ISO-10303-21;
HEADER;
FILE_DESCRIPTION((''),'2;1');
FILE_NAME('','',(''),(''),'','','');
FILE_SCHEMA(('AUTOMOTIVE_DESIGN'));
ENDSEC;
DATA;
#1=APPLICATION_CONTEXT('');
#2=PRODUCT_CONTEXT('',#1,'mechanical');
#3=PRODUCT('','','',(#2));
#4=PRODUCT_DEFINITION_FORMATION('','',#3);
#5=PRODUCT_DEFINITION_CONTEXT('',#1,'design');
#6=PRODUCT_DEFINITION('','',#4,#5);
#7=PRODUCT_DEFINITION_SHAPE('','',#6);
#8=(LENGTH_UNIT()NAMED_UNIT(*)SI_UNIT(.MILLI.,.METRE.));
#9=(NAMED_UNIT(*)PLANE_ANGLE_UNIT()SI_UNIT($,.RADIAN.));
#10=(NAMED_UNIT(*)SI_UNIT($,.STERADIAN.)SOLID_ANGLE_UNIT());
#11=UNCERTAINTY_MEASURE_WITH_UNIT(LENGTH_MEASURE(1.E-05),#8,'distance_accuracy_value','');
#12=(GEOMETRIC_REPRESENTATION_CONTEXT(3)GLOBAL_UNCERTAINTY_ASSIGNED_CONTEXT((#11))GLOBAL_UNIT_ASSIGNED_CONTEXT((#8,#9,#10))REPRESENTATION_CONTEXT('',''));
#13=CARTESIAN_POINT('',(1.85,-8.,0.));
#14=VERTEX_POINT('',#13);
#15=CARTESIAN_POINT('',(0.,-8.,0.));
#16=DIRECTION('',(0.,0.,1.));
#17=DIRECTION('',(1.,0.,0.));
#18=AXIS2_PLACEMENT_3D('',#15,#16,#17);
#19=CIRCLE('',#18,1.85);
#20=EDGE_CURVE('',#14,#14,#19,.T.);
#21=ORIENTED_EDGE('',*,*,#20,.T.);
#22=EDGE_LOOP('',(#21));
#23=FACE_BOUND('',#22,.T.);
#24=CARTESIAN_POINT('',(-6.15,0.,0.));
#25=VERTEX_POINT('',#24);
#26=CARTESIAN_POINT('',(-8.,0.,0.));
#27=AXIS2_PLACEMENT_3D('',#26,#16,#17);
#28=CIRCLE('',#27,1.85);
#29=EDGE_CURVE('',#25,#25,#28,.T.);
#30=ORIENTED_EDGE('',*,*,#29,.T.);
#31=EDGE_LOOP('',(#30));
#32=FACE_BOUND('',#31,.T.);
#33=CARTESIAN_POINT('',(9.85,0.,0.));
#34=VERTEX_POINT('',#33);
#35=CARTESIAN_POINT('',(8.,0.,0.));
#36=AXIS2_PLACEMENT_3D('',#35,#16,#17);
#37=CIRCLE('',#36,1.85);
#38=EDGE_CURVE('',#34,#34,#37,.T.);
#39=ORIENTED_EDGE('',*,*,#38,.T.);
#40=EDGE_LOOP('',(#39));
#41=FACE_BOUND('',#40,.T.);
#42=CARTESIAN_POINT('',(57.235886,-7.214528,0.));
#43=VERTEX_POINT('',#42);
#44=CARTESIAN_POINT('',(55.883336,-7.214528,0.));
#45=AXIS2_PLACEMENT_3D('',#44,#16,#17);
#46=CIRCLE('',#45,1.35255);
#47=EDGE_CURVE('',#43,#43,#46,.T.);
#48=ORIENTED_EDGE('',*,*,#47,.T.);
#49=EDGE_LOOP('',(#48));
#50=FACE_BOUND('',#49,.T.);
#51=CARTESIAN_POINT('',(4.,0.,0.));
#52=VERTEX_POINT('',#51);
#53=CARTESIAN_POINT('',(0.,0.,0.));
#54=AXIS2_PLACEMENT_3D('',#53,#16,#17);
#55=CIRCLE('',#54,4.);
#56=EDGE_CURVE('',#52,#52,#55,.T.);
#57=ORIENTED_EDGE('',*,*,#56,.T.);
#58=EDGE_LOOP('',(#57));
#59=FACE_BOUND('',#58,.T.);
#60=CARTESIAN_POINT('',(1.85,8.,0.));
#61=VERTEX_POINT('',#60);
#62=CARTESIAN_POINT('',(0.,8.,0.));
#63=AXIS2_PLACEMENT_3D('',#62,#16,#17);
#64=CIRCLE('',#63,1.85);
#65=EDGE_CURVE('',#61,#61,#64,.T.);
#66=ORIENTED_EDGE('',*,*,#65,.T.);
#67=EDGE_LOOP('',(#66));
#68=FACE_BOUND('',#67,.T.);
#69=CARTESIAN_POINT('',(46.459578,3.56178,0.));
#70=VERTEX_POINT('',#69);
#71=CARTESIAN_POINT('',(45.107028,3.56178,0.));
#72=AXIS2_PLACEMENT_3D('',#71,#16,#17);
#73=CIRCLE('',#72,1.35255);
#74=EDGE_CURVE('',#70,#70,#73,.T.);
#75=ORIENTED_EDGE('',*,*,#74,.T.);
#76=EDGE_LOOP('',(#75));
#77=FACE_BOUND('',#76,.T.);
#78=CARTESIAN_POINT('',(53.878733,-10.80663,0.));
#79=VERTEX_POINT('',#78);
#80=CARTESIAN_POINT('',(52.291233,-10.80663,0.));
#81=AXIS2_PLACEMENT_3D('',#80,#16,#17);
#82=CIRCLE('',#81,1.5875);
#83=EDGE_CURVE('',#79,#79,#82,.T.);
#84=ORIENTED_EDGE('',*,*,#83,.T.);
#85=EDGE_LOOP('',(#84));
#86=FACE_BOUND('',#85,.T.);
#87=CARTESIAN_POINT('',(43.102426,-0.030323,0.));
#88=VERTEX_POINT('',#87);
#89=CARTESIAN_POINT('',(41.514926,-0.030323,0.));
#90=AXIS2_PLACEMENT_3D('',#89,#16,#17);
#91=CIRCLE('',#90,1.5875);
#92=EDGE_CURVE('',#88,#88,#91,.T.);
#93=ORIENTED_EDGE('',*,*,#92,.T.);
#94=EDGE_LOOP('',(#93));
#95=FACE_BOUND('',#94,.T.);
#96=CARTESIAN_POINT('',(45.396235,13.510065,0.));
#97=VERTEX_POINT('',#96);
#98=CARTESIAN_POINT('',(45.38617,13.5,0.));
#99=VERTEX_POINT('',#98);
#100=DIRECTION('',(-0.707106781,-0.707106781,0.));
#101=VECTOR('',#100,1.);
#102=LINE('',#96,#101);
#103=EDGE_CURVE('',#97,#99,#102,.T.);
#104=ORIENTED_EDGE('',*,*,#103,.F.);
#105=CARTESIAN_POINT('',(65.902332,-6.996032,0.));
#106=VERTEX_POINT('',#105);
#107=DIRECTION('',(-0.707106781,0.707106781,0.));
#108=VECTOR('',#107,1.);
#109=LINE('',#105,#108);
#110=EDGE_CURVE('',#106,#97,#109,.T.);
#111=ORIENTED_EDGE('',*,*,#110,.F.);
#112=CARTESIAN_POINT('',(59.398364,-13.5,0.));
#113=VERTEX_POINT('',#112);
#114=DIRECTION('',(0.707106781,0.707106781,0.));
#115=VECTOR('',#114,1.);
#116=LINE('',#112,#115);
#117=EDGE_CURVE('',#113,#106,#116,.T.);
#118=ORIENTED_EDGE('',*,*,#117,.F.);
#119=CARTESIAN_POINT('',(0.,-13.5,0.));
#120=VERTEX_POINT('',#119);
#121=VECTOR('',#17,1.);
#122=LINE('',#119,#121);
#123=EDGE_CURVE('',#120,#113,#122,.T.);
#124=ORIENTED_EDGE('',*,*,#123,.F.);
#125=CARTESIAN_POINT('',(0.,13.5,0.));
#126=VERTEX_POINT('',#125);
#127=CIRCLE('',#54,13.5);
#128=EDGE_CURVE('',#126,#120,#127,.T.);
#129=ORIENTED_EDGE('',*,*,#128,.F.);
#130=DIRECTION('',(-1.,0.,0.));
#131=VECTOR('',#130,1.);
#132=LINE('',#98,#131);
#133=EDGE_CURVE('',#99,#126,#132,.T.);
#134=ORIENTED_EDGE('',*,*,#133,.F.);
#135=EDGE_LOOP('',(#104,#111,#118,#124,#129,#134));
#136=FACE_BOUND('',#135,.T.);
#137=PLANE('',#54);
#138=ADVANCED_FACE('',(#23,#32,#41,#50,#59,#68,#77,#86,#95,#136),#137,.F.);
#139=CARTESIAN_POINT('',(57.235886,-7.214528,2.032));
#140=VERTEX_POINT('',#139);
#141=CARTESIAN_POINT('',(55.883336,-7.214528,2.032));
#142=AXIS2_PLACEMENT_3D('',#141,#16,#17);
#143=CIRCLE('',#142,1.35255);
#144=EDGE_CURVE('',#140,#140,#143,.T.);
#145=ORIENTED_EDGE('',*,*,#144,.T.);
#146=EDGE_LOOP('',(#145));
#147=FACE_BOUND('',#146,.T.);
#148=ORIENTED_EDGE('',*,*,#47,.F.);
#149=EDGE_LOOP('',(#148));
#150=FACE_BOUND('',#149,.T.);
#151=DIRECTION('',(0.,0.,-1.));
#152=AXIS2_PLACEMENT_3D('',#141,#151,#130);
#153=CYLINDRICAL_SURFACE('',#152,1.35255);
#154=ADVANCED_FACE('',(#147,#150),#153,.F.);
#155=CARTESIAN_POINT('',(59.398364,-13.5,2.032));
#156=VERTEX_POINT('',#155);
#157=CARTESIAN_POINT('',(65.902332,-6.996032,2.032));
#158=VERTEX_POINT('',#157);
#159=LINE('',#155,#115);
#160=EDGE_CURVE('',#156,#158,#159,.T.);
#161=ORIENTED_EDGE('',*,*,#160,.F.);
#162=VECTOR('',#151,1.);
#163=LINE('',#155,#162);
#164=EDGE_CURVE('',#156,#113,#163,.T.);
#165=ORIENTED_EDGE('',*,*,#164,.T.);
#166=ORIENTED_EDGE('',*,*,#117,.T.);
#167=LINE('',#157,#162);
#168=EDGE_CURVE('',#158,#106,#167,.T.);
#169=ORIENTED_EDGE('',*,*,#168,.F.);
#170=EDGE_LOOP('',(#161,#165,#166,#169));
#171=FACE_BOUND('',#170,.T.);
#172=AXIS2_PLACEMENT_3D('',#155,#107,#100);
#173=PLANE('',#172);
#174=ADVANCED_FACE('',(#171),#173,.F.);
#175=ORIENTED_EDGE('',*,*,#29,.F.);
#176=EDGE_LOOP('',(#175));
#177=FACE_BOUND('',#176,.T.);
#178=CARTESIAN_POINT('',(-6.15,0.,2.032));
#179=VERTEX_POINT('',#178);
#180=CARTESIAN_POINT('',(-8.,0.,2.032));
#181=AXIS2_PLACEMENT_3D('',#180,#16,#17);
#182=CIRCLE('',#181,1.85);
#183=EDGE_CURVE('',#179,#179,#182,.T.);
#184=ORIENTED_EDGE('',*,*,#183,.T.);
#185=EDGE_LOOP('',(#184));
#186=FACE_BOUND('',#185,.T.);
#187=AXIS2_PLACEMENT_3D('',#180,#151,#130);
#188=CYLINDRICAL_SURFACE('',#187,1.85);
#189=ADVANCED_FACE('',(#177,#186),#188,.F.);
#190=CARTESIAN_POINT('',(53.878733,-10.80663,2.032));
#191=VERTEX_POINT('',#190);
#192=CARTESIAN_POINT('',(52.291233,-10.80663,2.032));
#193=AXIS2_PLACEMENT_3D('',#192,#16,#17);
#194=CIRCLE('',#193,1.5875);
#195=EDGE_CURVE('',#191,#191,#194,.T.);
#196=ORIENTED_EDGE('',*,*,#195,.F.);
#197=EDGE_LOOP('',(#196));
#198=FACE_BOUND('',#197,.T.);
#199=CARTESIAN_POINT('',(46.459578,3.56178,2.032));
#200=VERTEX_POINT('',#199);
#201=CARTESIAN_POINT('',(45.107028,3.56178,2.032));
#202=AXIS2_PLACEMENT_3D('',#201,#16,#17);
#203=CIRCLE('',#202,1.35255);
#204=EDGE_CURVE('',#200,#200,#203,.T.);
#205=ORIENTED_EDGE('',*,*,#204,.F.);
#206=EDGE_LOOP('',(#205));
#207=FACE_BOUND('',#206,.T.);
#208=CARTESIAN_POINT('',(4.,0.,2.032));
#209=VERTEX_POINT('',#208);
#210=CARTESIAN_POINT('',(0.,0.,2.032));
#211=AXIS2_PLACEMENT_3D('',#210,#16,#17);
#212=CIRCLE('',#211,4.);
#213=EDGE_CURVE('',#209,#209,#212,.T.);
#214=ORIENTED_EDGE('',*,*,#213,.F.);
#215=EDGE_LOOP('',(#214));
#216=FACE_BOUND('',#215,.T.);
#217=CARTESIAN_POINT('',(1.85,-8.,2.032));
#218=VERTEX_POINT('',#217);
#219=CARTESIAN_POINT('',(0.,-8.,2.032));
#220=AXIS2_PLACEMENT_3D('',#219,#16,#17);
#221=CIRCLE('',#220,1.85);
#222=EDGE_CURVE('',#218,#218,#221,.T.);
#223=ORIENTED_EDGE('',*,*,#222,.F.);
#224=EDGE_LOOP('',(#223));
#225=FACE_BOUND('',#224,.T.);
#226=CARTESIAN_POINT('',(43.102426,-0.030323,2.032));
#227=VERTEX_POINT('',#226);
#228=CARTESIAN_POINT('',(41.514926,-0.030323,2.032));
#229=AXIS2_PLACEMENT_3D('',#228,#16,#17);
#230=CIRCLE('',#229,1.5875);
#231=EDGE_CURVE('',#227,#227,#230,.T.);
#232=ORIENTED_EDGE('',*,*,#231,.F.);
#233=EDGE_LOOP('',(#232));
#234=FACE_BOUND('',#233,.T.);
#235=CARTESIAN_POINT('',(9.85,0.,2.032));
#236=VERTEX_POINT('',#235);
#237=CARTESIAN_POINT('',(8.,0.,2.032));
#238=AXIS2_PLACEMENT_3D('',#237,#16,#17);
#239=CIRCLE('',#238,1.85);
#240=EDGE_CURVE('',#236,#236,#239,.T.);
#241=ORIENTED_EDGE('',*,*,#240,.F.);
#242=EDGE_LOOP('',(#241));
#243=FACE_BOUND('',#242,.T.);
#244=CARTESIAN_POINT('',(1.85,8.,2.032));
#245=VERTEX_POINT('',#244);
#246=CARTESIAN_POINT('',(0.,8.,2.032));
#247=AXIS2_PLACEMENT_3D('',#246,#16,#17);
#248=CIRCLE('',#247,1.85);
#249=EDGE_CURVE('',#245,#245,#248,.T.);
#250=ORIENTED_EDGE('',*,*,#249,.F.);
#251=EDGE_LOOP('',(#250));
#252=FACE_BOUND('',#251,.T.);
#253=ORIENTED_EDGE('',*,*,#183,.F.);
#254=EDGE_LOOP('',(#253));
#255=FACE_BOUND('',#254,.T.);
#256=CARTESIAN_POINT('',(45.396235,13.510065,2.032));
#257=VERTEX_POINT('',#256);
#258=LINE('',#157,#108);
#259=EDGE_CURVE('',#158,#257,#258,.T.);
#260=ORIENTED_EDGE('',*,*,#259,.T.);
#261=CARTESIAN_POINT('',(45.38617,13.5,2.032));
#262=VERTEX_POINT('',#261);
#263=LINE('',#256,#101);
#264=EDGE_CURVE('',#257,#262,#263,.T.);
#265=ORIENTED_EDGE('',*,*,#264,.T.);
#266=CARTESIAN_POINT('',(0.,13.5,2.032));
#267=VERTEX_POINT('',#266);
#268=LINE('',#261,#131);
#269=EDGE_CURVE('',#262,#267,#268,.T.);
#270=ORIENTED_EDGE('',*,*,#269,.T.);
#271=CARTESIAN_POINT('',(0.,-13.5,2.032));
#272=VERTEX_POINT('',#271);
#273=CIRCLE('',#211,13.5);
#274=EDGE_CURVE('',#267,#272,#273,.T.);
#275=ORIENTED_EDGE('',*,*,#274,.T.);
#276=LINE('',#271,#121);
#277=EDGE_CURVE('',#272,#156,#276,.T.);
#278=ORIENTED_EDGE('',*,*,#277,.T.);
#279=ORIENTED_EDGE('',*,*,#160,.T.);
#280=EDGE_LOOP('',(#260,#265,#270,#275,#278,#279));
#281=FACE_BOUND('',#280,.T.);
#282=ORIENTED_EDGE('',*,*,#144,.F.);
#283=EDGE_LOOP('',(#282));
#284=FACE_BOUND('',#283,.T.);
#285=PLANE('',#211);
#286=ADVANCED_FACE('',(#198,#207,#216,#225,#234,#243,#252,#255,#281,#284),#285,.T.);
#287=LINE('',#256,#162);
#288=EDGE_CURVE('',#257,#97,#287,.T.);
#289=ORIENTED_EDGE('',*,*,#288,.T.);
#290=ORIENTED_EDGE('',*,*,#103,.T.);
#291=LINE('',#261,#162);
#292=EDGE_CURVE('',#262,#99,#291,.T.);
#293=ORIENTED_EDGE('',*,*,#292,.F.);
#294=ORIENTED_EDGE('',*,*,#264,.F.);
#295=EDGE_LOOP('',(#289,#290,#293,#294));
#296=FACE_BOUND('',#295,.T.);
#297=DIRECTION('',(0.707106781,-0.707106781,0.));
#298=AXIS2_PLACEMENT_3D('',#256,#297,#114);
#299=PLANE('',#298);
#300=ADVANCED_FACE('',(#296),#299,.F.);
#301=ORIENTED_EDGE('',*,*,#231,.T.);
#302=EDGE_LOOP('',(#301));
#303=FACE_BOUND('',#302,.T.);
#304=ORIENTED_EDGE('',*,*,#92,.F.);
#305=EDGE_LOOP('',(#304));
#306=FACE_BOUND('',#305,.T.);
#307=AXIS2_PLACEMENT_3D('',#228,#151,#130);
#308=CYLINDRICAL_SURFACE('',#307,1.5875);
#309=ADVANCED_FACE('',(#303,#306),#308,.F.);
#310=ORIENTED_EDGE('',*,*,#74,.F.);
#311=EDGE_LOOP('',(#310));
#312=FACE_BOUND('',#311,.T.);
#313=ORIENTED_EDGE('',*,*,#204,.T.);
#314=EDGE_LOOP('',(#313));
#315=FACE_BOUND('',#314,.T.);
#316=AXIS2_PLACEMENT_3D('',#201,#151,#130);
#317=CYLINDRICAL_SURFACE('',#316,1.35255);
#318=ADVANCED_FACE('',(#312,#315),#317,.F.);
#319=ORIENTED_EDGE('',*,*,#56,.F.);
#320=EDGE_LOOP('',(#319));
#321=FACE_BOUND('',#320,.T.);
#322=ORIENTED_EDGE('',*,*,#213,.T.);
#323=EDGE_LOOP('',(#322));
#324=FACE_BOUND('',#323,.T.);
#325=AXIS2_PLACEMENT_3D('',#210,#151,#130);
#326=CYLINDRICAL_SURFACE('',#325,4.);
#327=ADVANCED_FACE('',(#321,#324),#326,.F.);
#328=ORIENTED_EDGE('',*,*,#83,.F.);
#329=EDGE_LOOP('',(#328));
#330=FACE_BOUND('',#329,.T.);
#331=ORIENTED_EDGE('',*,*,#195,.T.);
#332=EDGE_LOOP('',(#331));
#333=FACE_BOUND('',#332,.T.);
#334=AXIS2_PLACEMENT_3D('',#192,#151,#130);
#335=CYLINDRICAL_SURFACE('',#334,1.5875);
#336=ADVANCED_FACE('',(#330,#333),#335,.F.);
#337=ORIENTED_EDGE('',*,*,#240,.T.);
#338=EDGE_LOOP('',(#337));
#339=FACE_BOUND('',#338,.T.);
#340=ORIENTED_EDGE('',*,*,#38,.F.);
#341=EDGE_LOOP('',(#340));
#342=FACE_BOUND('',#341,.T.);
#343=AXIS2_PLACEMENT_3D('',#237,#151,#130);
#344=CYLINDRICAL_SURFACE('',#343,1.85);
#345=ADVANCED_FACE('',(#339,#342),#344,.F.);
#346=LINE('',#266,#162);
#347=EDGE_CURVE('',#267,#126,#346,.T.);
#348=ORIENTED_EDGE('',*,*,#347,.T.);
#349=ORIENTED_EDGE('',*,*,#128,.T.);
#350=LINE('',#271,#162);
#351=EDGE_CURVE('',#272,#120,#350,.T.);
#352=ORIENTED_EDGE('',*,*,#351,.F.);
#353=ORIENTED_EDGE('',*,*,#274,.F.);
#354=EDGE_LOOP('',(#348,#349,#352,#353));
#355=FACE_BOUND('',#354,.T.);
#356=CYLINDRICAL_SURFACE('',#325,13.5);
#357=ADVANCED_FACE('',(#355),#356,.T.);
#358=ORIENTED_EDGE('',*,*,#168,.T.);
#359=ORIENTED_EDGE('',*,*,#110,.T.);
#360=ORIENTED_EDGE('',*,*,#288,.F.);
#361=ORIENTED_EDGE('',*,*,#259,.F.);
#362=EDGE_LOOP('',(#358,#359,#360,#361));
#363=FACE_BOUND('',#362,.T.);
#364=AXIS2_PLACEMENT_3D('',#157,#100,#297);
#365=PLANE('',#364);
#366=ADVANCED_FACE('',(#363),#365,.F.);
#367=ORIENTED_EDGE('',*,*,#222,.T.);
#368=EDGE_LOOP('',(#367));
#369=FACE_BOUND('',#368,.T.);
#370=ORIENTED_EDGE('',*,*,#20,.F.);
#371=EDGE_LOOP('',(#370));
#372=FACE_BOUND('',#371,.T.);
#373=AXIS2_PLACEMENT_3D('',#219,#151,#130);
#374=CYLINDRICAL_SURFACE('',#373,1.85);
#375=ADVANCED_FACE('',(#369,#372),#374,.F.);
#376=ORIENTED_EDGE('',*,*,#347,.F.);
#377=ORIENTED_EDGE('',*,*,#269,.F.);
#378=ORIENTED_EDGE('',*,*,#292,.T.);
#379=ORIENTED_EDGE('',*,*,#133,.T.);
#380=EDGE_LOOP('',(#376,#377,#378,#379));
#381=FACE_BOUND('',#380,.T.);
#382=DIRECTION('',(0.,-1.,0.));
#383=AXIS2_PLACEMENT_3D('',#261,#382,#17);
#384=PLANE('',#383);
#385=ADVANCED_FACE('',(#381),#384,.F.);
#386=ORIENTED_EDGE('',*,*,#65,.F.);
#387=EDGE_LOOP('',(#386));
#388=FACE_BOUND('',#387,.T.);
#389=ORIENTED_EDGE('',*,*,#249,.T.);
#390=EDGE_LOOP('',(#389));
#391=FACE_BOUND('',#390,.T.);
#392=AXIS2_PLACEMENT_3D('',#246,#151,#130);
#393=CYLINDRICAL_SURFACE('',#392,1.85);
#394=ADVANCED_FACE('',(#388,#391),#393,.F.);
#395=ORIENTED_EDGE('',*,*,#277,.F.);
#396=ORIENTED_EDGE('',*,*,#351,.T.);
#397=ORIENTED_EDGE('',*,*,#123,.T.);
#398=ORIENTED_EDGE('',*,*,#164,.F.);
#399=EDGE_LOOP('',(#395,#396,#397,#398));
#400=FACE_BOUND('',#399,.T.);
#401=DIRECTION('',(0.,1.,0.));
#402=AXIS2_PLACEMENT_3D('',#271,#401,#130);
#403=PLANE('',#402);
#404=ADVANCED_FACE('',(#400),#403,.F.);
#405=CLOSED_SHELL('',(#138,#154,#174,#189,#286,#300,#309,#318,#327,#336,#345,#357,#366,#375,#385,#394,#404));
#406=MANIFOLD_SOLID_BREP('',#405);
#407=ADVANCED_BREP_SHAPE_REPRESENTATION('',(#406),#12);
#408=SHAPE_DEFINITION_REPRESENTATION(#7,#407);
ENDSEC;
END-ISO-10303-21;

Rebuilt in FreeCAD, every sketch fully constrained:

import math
import FreeCAD as App
import Part
import Sketcher
from FreeCAD import Vector
Q = App.Units.Quantity

doc = App.newDocument("Part")
body = doc.addObject("PartDesign::Body", "Body")

sketch1 = doc.addObject("Sketcher::SketchObject", "Sketch")
body.addObject(sketch1)
sketch1.AttachmentSupport = (doc.XY_Plane, [""])
sketch1.MapMode = "FlatFace"
sketch1.addGeometry(Part.LineSegment(Vector(45.396235, 13.510065, 0), Vector(45.38617, 13.5, 0)), False)
sketch1.addGeometry(Part.LineSegment(Vector(45.38617, 13.5, 0), Vector(0, 13.5, 0)), False)
sketch1.addGeometry(Part.ArcOfCircle(Part.Circle(Vector(0, 0, 0), Vector(0, 0, 1), 13.5), math.radians(90), math.radians(270)), False)
sketch1.addGeometry(Part.LineSegment(Vector(0, -13.5, 0), Vector(59.398364, -13.5, 0)), False)
sketch1.addGeometry(Part.LineSegment(Vector(59.398364, -13.5, 0), Vector(65.902332, -6.996032, 0)), False)
sketch1.addGeometry(Part.LineSegment(Vector(65.902332, -6.996032, 0), Vector(45.396235, 13.510065, 0)), False)
sketch1.addGeometry(Part.Circle(Vector(0, -8, 0), Vector(0, 0, 1), 1.85), False)
sketch1.addGeometry(Part.Circle(Vector(52.291233, -10.80663, 0), Vector(0, 0, 1), 1.5875), False)
sketch1.addGeometry(Part.Circle(Vector(55.883336, -7.214528, 0), Vector(0, 0, 1), 1.35255), False)
sketch1.addGeometry(Part.Circle(Vector(-8, 0, 0), Vector(0, 0, 1), 1.85), False)
sketch1.addGeometry(Part.Circle(Vector(0, 0, 0), Vector(0, 0, 1), 4), False)
sketch1.addGeometry(Part.Circle(Vector(8, 0, 0), Vector(0, 0, 1), 1.85), False)
sketch1.addGeometry(Part.Circle(Vector(0, 8, 0), Vector(0, 0, 1), 1.85), False)
sketch1.addGeometry(Part.Circle(Vector(41.514926, -0.030323, 0), Vector(0, 0, 1), 1.5875), False)
sketch1.addGeometry(Part.Circle(Vector(45.107028, 3.56178, 0), Vector(0, 0, 1), 1.35255), False)
sketch1.addConstraint(Sketcher.Constraint("Coincident", 0, 2, 1, 1))
sketch1.addConstraint(Sketcher.Constraint("Tangent", 1, 2, 2, 1))
sketch1.addConstraint(Sketcher.Constraint("Tangent", 2, 2, 3, 1))
sketch1.addConstraint(Sketcher.Constraint("Coincident", 3, 2, 4, 1))
sketch1.addConstraint(Sketcher.Constraint("Coincident", 4, 2, 5, 1))
sketch1.addConstraint(Sketcher.Constraint("Coincident", 5, 2, 0, 1))
sketch1.addConstraint(Sketcher.Constraint("Horizontal", 1))
sketch1.addConstraint(Sketcher.Constraint("Horizontal", 3))
sketch1.addConstraint(Sketcher.Constraint("Coincident", 2, 3, -1, 1))
sketch1.addConstraint(Sketcher.Constraint("Coincident", 10, 3, -1, 1))
sketch1.addConstraint(Sketcher.Constraint("Equal", 6, 9))
sketch1.addConstraint(Sketcher.Constraint("Equal", 9, 11))
sketch1.addConstraint(Sketcher.Constraint("Equal", 11, 12))
sketch1.addConstraint(Sketcher.Constraint("Equal", 7, 13))
sketch1.addConstraint(Sketcher.Constraint("Equal", 8, 14))
sketch1.addConstraint(Sketcher.Constraint("Symmetric", 9, 3, 11, 3, -1, 1))
sketch1.addConstraint(Sketcher.Constraint("Symmetric", 6, 3, 12, 3, -1, 1))
sketch1.addConstraint(Sketcher.Constraint("PointOnObject", 6, 3, -2))
sketch1.addConstraint(Sketcher.Constraint("PointOnObject", 9, 3, -1))
sketch1.addConstraint(Sketcher.Constraint("Parallel", 0, 4))
sketch1.addConstraint(Sketcher.Constraint("Perpendicular", 4, 5))
sketch1.addConstraint(Sketcher.Constraint("Diameter", 10, 8.0))
sketch1.addConstraint(Sketcher.Constraint("Diameter", 6, 3.7))
sketch1.addConstraint(Sketcher.Constraint("Radius", 2, 13.5))
sketch1.addConstraint(Sketcher.Constraint("Angle", 4, Q("45 deg")))
sketch1.addConstraint(Sketcher.Constraint("Distance", 5, 29.0))
sketch1.addConstraint(Sketcher.Constraint("Diameter", 7, 3.175))
sketch1.addConstraint(Sketcher.Constraint("DistanceY", 6, 3, -1, 1, 8.0))
sketch1.addConstraint(Sketcher.Constraint("DistanceX", 9, 3, -1, 1, 8.0))
sketch1.addConstraint(Sketcher.Constraint("Diameter", 8, 2.7051))
sketch1.addConstraint(Sketcher.Constraint("Distance", 4, 9.198))
sketch1.addConstraint(Sketcher.Constraint("DistanceX", 5, 2, 7, 3, 6.894998))
sketch1.addConstraint(Sketcher.Constraint("DistanceX", 1, 2, 1, 1, 45.38617))
sketch1.addConstraint(Sketcher.Constraint("DistanceY", 7, 3, 4, 2, 3.810598))
sketch1.addConstraint(Sketcher.Constraint("DistanceX", 5, 2, 8, 3, 10.487101))
sketch1.addConstraint(Sketcher.Constraint("DistanceX", -1, 1, 14, 3, 45.107028))
sketch1.addConstraint(Sketcher.Constraint("DistanceY", -1, 1, 14, 3, 3.56178))
sketch1.addConstraint(Sketcher.Constraint("DistanceX", 13, 3, 8, 3, 14.36841))
sketch1.addConstraint(Sketcher.Constraint("DistanceY", 4, 2, 13, 3, 6.965709))
sketch1.addConstraint(Sketcher.Constraint("DistanceY", 8, 3, -1, 1, 7.214528))
pad1 = doc.addObject("PartDesign::Pad", "Pad")
body.addObject(pad1)
pad1.Profile = sketch1
pad1.Length = 2.032

doc.recompute()
